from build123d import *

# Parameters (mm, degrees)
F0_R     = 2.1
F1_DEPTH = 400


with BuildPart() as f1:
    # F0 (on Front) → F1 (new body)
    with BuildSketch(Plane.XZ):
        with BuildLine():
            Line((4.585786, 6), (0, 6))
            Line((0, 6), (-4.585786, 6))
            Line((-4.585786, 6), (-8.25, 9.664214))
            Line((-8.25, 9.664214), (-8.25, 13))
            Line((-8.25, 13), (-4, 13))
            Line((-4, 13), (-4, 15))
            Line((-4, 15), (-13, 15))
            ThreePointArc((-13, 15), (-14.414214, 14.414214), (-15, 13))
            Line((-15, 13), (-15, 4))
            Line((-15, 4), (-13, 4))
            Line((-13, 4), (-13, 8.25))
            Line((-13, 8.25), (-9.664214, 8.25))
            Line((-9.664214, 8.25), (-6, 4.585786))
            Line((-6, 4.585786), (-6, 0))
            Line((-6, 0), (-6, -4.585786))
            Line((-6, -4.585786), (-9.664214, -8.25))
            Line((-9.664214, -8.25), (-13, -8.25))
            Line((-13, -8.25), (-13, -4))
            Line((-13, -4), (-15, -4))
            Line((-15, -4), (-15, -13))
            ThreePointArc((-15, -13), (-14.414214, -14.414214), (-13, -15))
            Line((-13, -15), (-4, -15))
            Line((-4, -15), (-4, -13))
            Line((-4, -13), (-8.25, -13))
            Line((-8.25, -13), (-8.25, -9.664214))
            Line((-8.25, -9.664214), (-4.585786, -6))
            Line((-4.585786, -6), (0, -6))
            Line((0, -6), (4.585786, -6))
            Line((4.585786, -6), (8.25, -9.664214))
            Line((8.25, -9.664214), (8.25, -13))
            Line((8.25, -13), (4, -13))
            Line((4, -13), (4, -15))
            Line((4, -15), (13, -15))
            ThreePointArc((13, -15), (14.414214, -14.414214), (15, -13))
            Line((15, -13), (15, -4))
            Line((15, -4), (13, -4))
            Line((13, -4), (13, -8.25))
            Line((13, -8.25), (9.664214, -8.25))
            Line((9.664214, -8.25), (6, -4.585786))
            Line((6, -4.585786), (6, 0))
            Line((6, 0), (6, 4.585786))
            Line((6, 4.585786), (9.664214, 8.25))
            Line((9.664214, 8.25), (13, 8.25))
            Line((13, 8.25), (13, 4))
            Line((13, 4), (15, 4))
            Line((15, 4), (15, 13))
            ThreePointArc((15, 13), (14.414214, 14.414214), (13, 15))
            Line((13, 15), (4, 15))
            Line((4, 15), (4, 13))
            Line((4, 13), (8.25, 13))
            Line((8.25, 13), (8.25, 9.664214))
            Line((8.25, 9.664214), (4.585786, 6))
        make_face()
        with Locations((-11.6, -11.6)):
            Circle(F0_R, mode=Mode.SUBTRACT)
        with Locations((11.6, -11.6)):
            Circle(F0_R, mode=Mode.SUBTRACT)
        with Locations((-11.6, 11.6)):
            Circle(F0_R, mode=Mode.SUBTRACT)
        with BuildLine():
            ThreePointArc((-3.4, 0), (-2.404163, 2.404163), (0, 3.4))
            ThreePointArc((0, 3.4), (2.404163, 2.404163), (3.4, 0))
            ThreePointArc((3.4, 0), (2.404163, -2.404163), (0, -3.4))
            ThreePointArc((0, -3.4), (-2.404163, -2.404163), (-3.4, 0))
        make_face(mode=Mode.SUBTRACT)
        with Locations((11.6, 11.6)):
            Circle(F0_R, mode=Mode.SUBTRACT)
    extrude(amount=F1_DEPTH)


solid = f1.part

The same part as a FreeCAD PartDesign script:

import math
import FreeCAD as App
import Part
import Sketcher

V = App.Vector

doc = App.newDocument("Part")
params = doc.addObject("Spreadsheet::Sheet", "Params")
for row, (alias, value) in enumerate([
    ("sketch1_radius", "1.999999 mm"),
    ("sketch1_diameter", "4.2 mm"),
    ("sketch1_radius2", "3.4 mm"),
    ("sketch1_width", "9 mm"),
    ("sketch1_width2", "4.25 mm"),
    ("pad1_length", "400 mm"),
], start=1):
    params.set(f"A{row}", alias)
    params.set(f"B{row}", "=" + value)
    params.setAlias(f"B{row}", alias)

body = doc.addObject("PartDesign::Body", "Body")

sketch1 = body.newObject("Sketcher::SketchObject", "Sketch")
sketch1.AttachmentSupport = (doc.getObject("XZ_Plane"), [""])
sketch1.MapMode = "FlatFace"
sketch1.addGeometry([
    Part.LineSegment(V(4.6, 6, 0), V(-4.6, 6, 0)),
    Part.LineSegment(V(-4.6, 6, 0), V(-8.2, 9.7, 0)),
    Part.LineSegment(V(-8.2, 9.7, 0), V(-8.2, 13, 0)),
    Part.LineSegment(V(-8.2, 13, 0), V(-4, 13, 0)),
    Part.LineSegment(V(-4, 13, 0), V(-4, 15, 0)),
    Part.LineSegment(V(-4, 15, 0), V(-13, 15, 0)),
    Part.ArcOfCircle(Part.Circle(V(-13, 13, 0), V(0, 0, 1), 2), math.radians(90), math.radians(180)),
    Part.LineSegment(V(-15, 13, 0), V(-15, 4, 0)),
    Part.LineSegment(V(-15, 4, 0), V(-13, 4, 0)),
    Part.LineSegment(V(-13, 4, 0), V(-13, 8.2, 0)),
    Part.LineSegment(V(-13, 8.2, 0), V(-9.7, 8.2, 0)),
    Part.LineSegment(V(-9.7, 8.2, 0), V(-6, 4.6, 0)),
    Part.LineSegment(V(-6, 4.6, 0), V(-6, -4.6, 0)),
    Part.LineSegment(V(-6, -4.6, 0), V(-9.7, -8.2, 0)),
    Part.LineSegment(V(-9.7, -8.2, 0), V(-13, -8.2, 0)),
    Part.LineSegment(V(-13, -8.2, 0), V(-13, -4, 0)),
    Part.LineSegment(V(-13, -4, 0), V(-15, -4, 0)),
    Part.LineSegment(V(-15, -4, 0), V(-15, -13, 0)),
    Part.ArcOfCircle(Part.Circle(V(-13, -13, 0), V(0, 0, 1), 2), math.radians(180), math.radians(270)),
    Part.LineSegment(V(-13, -15, 0), V(-4, -15, 0)),
    Part.LineSegment(V(-4, -15, 0), V(-4, -13, 0)),
    Part.LineSegment(V(-4, -13, 0), V(-8.2, -13, 0)),
    Part.LineSegment(V(-8.2, -13, 0), V(-8.2, -9.7, 0)),
    Part.LineSegment(V(-8.2, -9.7, 0), V(-4.6, -6, 0)),
    Part.LineSegment(V(-4.6, -6, 0), V(4.6, -6, 0)),
    Part.LineSegment(V(4.6, -6, 0), V(8.2, -9.7, 0)),
    Part.LineSegment(V(8.2, -9.7, 0), V(8.2, -13, 0)),
    Part.LineSegment(V(8.2, -13, 0), V(4, -13, 0)),
    Part.LineSegment(V(4, -13, 0), V(4, -15, 0)),
    Part.LineSegment(V(4, -15, 0), V(13, -15, 0)),
    Part.ArcOfCircle(Part.Circle(V(13, -13, 0), V(0, 0, 1), 2), math.radians(-90), math.radians(0)),
    Part.LineSegment(V(15, -13, 0), V(15, -4, 0)),
    Part.LineSegment(V(15, -4, 0), V(13, -4, 0)),
    Part.LineSegment(V(13, -4, 0), V(13, -8.2, 0)),
    Part.LineSegment(V(13, -8.2, 0), V(9.7, -8.2, 0)),
    Part.LineSegment(V(9.7, -8.2, 0), V(6, -4.6, 0)),
    Part.LineSegment(V(6, -4.6, 0), V(6, 4.6, 0)),
    Part.LineSegment(V(6, 4.6, 0), V(9.7, 8.2, 0)),
    Part.LineSegment(V(9.7, 8.2, 0), V(13, 8.2, 0)),
    Part.LineSegment(V(13, 8.2, 0), V(13, 4, 0)),
    Part.LineSegment(V(13, 4, 0), V(15, 4, 0)),
    Part.LineSegment(V(15, 4, 0), V(15, 13, 0)),
    Part.ArcOfCircle(Part.Circle(V(13, 13, 0), V(0, 0, 1), 2), math.radians(0), math.radians(90)),
    Part.LineSegment(V(13, 15, 0), V(4, 15, 0)),
    Part.LineSegment(V(4, 15, 0), V(4, 13, 0)),
    Part.LineSegment(V(4, 13, 0), V(8.2, 13, 0)),
    Part.LineSegment(V(8.2, 13, 0), V(8.2, 9.7, 0)),
    Part.LineSegment(V(8.2, 9.7, 0), V(4.6, 6, 0)),
    Part.Circle(V(-11.6, -11.6, 0), V(0, 0, 1), 2.1),
    Part.Circle(V(11.6, -11.6, 0), V(0, 0, 1), 2.1),
    Part.Circle(V(-11.6, 11.6, 0), V(0, 0, 1), 2.1),
    Part.ArcOfCircle(Part.Circle(V(0, 0, 0), V(0, 0, 1), 3.4), math.radians(-180), math.radians(-90)),
    Part.ArcOfCircle(Part.Circle(V(0, 0, 0), V(0, 0, 1), 3.4), math.radians(90), math.radians(180)),
    Part.ArcOfCircle(Part.Circle(V(0, 0, 0), V(0, 0, 1), 3.4), math.radians(0), math.radians(90)),
    Part.ArcOfCircle(Part.Circle(V(0, 0, 0), V(0, 0, 1), 3.4), math.radians(-90), math.radians(0)),
    Part.Circle(V(11.6, 11.6, 0), V(0, 0, 1), 2.1),
], False)
sketch1.addConstraint([
    Sketcher.Constraint("Coincident", 0, 2, 1, 1),
    Sketcher.Constraint("Coincident", 1, 2, 2, 1),
    Sketcher.Constraint("Coincident", 2, 2, 3, 1),
    Sketcher.Constraint("Coincident", 3, 2, 4, 1),
    Sketcher.Constraint("Coincident", 4, 2, 5, 1),
    Sketcher.Constraint("Tangent", 5, 2, 6, 1),
    Sketcher.Constraint("Tangent", 6, 2, 7, 1),
    Sketcher.Constraint("Coincident", 7, 2, 8, 1),
    Sketcher.Constraint("Coincident", 8, 2, 9, 1),
    Sketcher.Constraint("Coincident", 9, 2, 10, 1),
    Sketcher.Constraint("Coincident", 10, 2, 11, 1),
    Sketcher.Constraint("Coincident", 11, 2, 12, 1),
    Sketcher.Constraint("Coincident", 12, 2, 13, 1),
    Sketcher.Constraint("Coincident", 13, 2, 14, 1),
    Sketcher.Constraint("Coincident", 14, 2, 15, 1),
    Sketcher.Constraint("Coincident", 15, 2, 16, 1),
    Sketcher.Constraint("Coincident", 16, 2, 17, 1),
    Sketcher.Constraint("Tangent", 17, 2, 18, 1),
    Sketcher.Constraint("Tangent", 18, 2, 19, 1),
    Sketcher.Constraint("Coincident", 19, 2, 20, 1),
    Sketcher.Constraint("Coincident", 20, 2, 21, 1),
    Sketcher.Constraint("Coincident", 21, 2, 22, 1),
    Sketcher.Constraint("Coincident", 22, 2, 23, 1),
    Sketcher.Constraint("Coincident", 23, 2, 24, 1),
    Sketcher.Constraint("Coincident", 24, 2, 25, 1),
    Sketcher.Constraint("Coincident", 25, 2, 26, 1),
    Sketcher.Constraint("Coincident", 26, 2, 27, 1),
    Sketcher.Constraint("Coincident", 27, 2, 28, 1),
    Sketcher.Constraint("Coincident", 28, 2, 29, 1),
    Sketcher.Constraint("Tangent", 29, 2, 30, 1),
    Sketcher.Constraint("Tangent", 30, 2, 31, 1),
    Sketcher.Constraint("Coincident", 31, 2, 32, 1),
    Sketcher.Constraint("Coincident", 32, 2, 33, 1),
    Sketcher.Constraint("Coincident", 33, 2, 34, 1),
    Sketcher.Constraint("Coincident", 34, 2, 35, 1),
    Sketcher.Constraint("Coincident", 35, 2, 36, 1),
    Sketcher.Constraint("Coincident", 36, 2, 37, 1),
    Sketcher.Constraint("Coincident", 37, 2, 38, 1),
    Sketcher.Constraint("Coincident", 38, 2, 39, 1),
    Sketcher.Constraint("Coincident", 39, 2, 40, 1),
    Sketcher.Constraint("Coincident", 40, 2, 41, 1),
    Sketcher.Constraint("Tangent", 41, 2, 42, 1),
    Sketcher.Constraint("Tangent", 42, 2, 43, 1),
    Sketcher.Constraint("Coincident", 43, 2, 44, 1),
    Sketcher.Constraint("Coincident", 44, 2, 45, 1),
    Sketcher.Constraint("Coincident", 45, 2, 46, 1),
    Sketcher.Constraint("Coincident", 46, 2, 47, 1),
    Sketcher.Constraint("Coincident", 47, 2, 0, 1),
    Sketcher.Constraint("Tangent", 51, 1, 52, 2),
    Sketcher.Constraint("Tangent", 52, 1, 53, 2),
    Sketcher.Constraint("Tangent", 53, 1, 54, 2),
    Sketcher.Constraint("Tangent", 54, 1, 51, 2),
    Sketcher.Constraint("Horizontal", 0),
    Sketcher.Constraint("Vertical", 2),
    Sketcher.Constraint("Horizontal", 3),
    Sketcher.Constraint("Vertical", 4),
    Sketcher.Constraint("Horizontal", 5),
    Sketcher.Constraint("Vertical", 7),
    Sketcher.Constraint("Horizontal", 8),
    Sketcher.Constraint("Vertical", 9),
    Sketcher.Constraint("Horizontal", 10),
    Sketcher.Constraint("Vertical", 12),
    Sketcher.Constraint("Horizontal", 14),
    Sketcher.Constraint("Vertical", 15),
    Sketcher.Constraint("Horizontal", 16),
    Sketcher.Constraint("Vertical", 17),
    Sketcher.Constraint("Horizontal", 19),
    Sketcher.Constraint("Vertical", 20),
    Sketcher.Constraint("Horizontal", 21),
    Sketcher.Constraint("Vertical", 22),
    Sketcher.Constraint("Horizontal", 24),
    Sketcher.Constraint("Vertical", 26),
    Sketcher.Constraint("Horizontal", 27),
    Sketcher.Constraint("Vertical", 28),
    Sketcher.Constraint("Horizontal", 29),
    Sketcher.Constraint("Vertical", 31),
    Sketcher.Constraint("Horizontal", 32),
    Sketcher.Constraint("Vertical", 33),
    Sketcher.Constraint("Horizontal", 34),
    Sketcher.Constraint("Vertical", 36),
    Sketcher.Constraint("Horizontal", 38),
    Sketcher.Constraint("Vertical", 39),
    Sketcher.Constraint("Horizontal", 40),
    Sketcher.Constraint("Vertical", 41),
    Sketcher.Constraint("Horizontal", 43),
    Sketcher.Constraint("Vertical", 44),
    Sketcher.Constraint("Horizontal", 45),
    Sketcher.Constraint("Vertical", 46),
    Sketcher.Constraint("Coincident", 51, 3, -1, 1),
    Sketcher.Constraint("Equal", 6, 18),
    Sketcher.Constraint("Equal", 18, 30),
    Sketcher.Constraint("Equal", 30, 42),
    Sketcher.Constraint("Equal", 48, 49),
    Sketcher.Constraint("Equal", 49, 50),
    Sketcher.Constraint("Equal", 51, 52),
    Sketcher.Constraint("Equal", 50, 55),
    Sketcher.Constraint("Symmetric", 6, 3, 30, 3, -1, 1),
    Sketcher.Constraint("Symmetric", 18, 3, 42, 3, -1, 1),
    Sketcher.Constraint("Symmetric", 49, 3, 50, 3, -1, 1),
    Sketcher.Constraint("Symmetric", 48, 3, 55, 3, -1, 1),
    Sketcher.Constraint("Symmetric", 0, 2, 24, 2, -1, 1),
    Sketcher.Constraint("Symmetric", 1, 2, 25, 2, -1, 1),
    Sketcher.Constraint("Symmetric", 3, 2, 27, 2, -1, 1),
    Sketcher.Constraint("Symmetric", 8, 2, 32, 2, -1, 1),
    Sketcher.Constraint("Symmetric", 10, 2, 34, 2, -1, 1),
    Sketcher.Constraint("Symmetric", 11, 2, 35, 2, -1, 1),
    Sketcher.Constraint("Symmetric", 13, 2, 37, 2, -1, 1),
    Sketcher.Constraint("Symmetric", 15, 2, 39, 2, -1, 1),
    Sketcher.Constraint("Symmetric", 20, 2, 44, 2, -1, 1),
    Sketcher.Constraint("Symmetric", 22, 2, 46, 2, -1, 1),
    Sketcher.Constraint("Symmetric", 18, 3, 30, 3, -2),
    Sketcher.Constraint("Symmetric", 48, 3, 49, 3, -2),
    Sketcher.Constraint("Symmetric", 22, 2, 25, 2, -2),
    Sketcher.Constraint("Symmetric", 20, 2, 27, 2, -2),
    Sketcher.Constraint("Symmetric", 15, 2, 32, 2, -2),
    Sketcher.Constraint("Symmetric", 13, 2, 34, 2, -2),
    Sketcher.Constraint("PointOnObject", 51, 1, -1),
    Sketcher.Constraint("PointOnObject", 52, 1, -2),
    Sketcher.Constraint("PointOnObject", 53, 1, -1),
    Sketcher.Constraint("PointOnObject", 54, 1, -2),
    Sketcher.Constraint("Parallel", 1, 11),
    Sketcher.Constraint("Perpendicular", 11, 13),
    Sketcher.Constraint("Parallel", 13, 23),
    Sketcher.Constraint("Perpendicular", 35, 37),
    Sketcher.Constraint("Parallel", 37, 47),
    Sketcher.Constraint("Horizontal", 42, 3, 2, 2),
    Sketcher.Constraint("Horizontal", 12, 2, 35, 2),
    Sketcher.Constraint("Vertical", 5, 2, 8, 2),
    Sketcher.Constraint("Equal", 38, 2),
    Sketcher.Constraint("Equal", 43, 7),
    Sketcher.Constraint("Equal", 45, 9),
    Sketcher.Constraint("Equal", 24, 12),
    Sketcher.Constraint("Equal", 1, 11),
    Sketcher.Constraint("Radius", 6, 1.999999),
    Sketcher.Constraint("Diameter", 48, 4.2),
    Sketcher.Constraint("Radius", 51, 3.4),
    Sketcher.Constraint("DistanceX", 5, 2, 5, 1, 9.0),
    Sketcher.Constraint("DistanceX", 6, 3, -1, 1, 13.000001),
    Sketcher.Constraint("DistanceY", -1, 1, 0, 2, 6.0),
    Sketcher.Constraint("DistanceX", 3, 1, 3, 2, 4.25),
    Sketcher.Constraint("DistanceX", 48, 3, -1, 1, 11.6),
    Sketcher.Constraint("DistanceY", 48, 3, -1, 1, 11.6),
    Sketcher.Constraint("Distance", 1, 5.181981),
])
sketch1.setExpression("Constraints[133]", "Params.sketch1_radius")
sketch1.setExpression("Constraints[134]", "Params.sketch1_diameter")
sketch1.setExpression("Constraints[135]", "Params.sketch1_radius2")
sketch1.setExpression("Constraints[136]", "Params.sketch1_width")
sketch1.setExpression("Constraints[139]", "Params.sketch1_width2")
pad1 = body.newObject("PartDesign::Pad", "Pad")
pad1.Profile = sketch1
pad1.setExpression("Length", "Params.pad1_length")

doc.recompute()
